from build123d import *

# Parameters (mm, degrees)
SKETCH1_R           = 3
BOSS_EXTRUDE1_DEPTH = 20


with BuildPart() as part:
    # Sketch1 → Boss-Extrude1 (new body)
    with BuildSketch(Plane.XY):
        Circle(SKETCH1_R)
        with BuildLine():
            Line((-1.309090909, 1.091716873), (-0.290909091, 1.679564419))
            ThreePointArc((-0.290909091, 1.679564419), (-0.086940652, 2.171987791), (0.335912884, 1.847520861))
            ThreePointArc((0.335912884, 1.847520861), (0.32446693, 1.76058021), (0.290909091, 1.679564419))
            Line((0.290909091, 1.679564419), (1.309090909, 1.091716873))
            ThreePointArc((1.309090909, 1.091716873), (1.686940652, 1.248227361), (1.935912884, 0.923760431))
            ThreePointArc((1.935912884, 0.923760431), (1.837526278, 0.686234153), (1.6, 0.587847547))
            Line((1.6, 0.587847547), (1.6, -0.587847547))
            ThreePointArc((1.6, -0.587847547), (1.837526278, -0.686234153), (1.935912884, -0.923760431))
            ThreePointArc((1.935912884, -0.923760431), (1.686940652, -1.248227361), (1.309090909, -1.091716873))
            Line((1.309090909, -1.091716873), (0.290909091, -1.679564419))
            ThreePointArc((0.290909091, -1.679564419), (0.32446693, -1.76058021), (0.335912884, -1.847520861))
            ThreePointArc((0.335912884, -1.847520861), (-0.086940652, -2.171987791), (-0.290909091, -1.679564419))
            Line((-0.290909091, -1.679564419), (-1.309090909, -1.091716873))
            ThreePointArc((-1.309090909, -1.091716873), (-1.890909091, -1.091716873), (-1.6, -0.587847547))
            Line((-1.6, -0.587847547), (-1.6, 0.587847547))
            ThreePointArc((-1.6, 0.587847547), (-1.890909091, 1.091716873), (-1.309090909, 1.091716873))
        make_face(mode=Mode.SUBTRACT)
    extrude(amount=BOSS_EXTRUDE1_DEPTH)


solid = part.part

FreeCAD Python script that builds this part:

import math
import FreeCAD as App
import Part
import Sketcher

V = App.Vector
Q = App.Units.Quantity

doc = App.newDocument("Part")
params = doc.addObject("Spreadsheet::Sheet", "Params")
for row, (alias, value) in enumerate([
    ("sketch1_diameter", "6 mm"),
    ("pad1_length", "20 mm"),
], start=1):
    params.set(f"A{row}", alias)
    params.set(f"B{row}", "=" + value)
    params.setAlias(f"B{row}", alias)

body = doc.addObject("PartDesign::Body", "Body")

sketch1 = doc.addObject("Sketcher::SketchObject", "Sketch")
body.addObject(sketch1)
sketch1.AttachmentSupport = (doc.XY_Plane, [""])
sketch1.MapMode = "FlatFace"
sketch1.addGeometry(Part.Circle(V(0, 0, 0), V(0, 0, 1), 3), False)
sketch1.addGeometry(Part.ArcOfCircle(Part.Circle(V(-1.6, 0.92, 0), V(0, 0, 1), 0.34), math.radians(30), math.radians(270)), False)
sketch1.addGeometry(Part.LineSegment(V(-1.31, 1.09, 0), V(-0.29, 1.68, 0)), False)
sketch1.addGeometry(Part.ArcOfCircle(Part.Circle(V(0, 1.85, 0), V(0, 0, 1), 0.34), math.radians(0), math.radians(210)), False)
sketch1.addGeometry(Part.ArcOfCircle(Part.Circle(V(0, 1.85, 0), V(0, 0, 1), 0.34), math.radians(-30), math.radians(0)), False)
sketch1.addGeometry(Part.LineSegment(V(0.29, 1.68, 0), V(1.31, 1.09, 0)), False)
sketch1.addGeometry(Part.ArcOfCircle(Part.Circle(V(1.6, 0.92, 0), V(0, 0, 1), 0.34), math.radians(0), math.radians(150)), False)
sketch1.addGeometry(Part.ArcOfCircle(Part.Circle(V(1.6, 0.92, 0), V(0, 0, 1), 0.34), math.radians(-90), math.radians(0)), False)
sketch1.addGeometry(Part.LineSegment(V(1.6, 0.59, 0), V(1.6, -0.59, 0)), False)
sketch1.addGeometry(Part.ArcOfCircle(Part.Circle(V(1.6, -0.92, 0), V(0, 0, 1), 0.34), math.radians(0), math.radians(90)), False)
sketch1.addGeometry(Part.ArcOfCircle(Part.Circle(V(1.6, -0.92, 0), V(0, 0, 1), 0.34), math.radians(-150), math.radians(0)), False)
sketch1.addGeometry(Part.LineSegment(V(1.31, -1.09, 0), V(0.29, -1.68, 0)), False)
sketch1.addGeometry(Part.ArcOfCircle(Part.Circle(V(0, -1.85, 0), V(0, 0, 1), 0.34), math.radians(0), math.radians(30)), False)
sketch1.addGeometry(Part.ArcOfCircle(Part.Circle(V(0, -1.85, 0), V(0, 0, 1), 0.34), math.radians(150), math.radians(360)), False)
sketch1.addGeometry(Part.LineSegment(V(-0.29, -1.68, 0), V(-1.31, -1.09, 0)), False)
sketch1.addGeometry(Part.ArcOfCircle(Part.Circle(V(-1.6, -0.92, 0), V(0, 0, 1), 0.34), math.radians(90), math.radians(330)), False)
sketch1.addGeometry(Part.LineSegment(V(-1.6, -0.59, 0), V(-1.6, 0.59, 0)), False)
sketch1.addConstraint(Sketcher.Constraint("Coincident", 1, 1, 2, 1))
sketch1.addConstraint(Sketcher.Constraint("Coincident", 2, 2, 3, 2))
sketch1.addConstraint(Sketcher.Constraint("Tangent", 3, 1, 4, 2))
sketch1.addConstraint(Sketcher.Constraint("Coincident", 4, 1, 5, 1))
sketch1.addConstraint(Sketcher.Constraint("Coincident", 5, 2, 6, 2))
sketch1.addConstraint(Sketcher.Constraint("Tangent", 6, 1, 7, 2))
sketch1.addConstraint(Sketcher.Constraint("Coincident", 7, 1, 8, 1))
sketch1.addConstraint(Sketcher.Constraint("Coincident", 8, 2, 9, 2))
sketch1.addConstraint(Sketcher.Constraint("Tangent", 9, 1, 10, 2))
sketch1.addConstraint(Sketcher.Constraint("Coincident", 10, 1, 11, 1))
sketch1.addConstraint(Sketcher.Constraint("Coincident", 11, 2, 12, 2))
sketch1.addConstraint(Sketcher.Constraint("Tangent", 12, 1, 13, 2))
sketch1.addConstraint(Sketcher.Constraint("Coincident", 13, 1, 14, 1))
sketch1.addConstraint(Sketcher.Constraint("Coincident", 14, 2, 15, 2))
sketch1.addConstraint(Sketcher.Constraint("Coincident", 15, 1, 16, 1))
sketch1.addConstraint(Sketcher.Constraint("Coincident", 16, 2, 1, 2))
sketch1.addConstraint(Sketcher.Constraint("Vertical", 8))
sketch1.addConstraint(Sketcher.Constraint("Vertical", 16))
sketch1.addConstraint(Sketcher.Constraint("Coincident", 0, 3, -1, 1))
sketch1.addConstraint(Sketcher.Constraint("Equal", 1, 3))
sketch1.addConstraint(Sketcher.Constraint("Equal", 3, 4))
sketch1.addConstraint(Sketcher.Constraint("Equal", 4, 6))
sketch1.addConstraint(Sketcher.Constraint("Equal", 6, 7))
sketch1.addConstraint(Sketcher.Constraint("Equal", 7, 9))
sketch1.addConstraint(Sketcher.Constraint("Equal", 9, 10))
sketch1.addConstraint(Sketcher.Constraint("Equal", 10, 12))
sketch1.addConstraint(Sketcher.Constraint("Equal", 12, 13))
sketch1.addConstraint(Sketcher.Constraint("Equal", 13, 15))
sketch1.addConstraint(Sketcher.Constraint("Symmetric", 1, 3, 9, 3, -1, 1))
sketch1.addConstraint(Sketcher.Constraint("Symmetric", 3, 3, 12, 3, -1, 1))
sketch1.addConstraint(Sketcher.Constraint("Symmetric", 6, 3, 15, 3, -1, 1))
sketch1.addConstraint(Sketcher.Constraint("Symmetric", 1, 3, 6, 3, -2))
sketch1.addConstraint(Sketcher.Constraint("Symmetric", 2, 2, 4, 1, -2))
sketch1.addConstraint(Sketcher.Constraint("Parallel", 2, 11))
sketch1.addConstraint(Sketcher.Constraint("Parallel", 5, 14))
sketch1.addConstraint(Sketcher.Constraint("Horizontal", 4, 3, 3, 1))
sketch1.addConstraint(Sketcher.Constraint("Horizontal", 1, 1, 5, 2))
sketch1.addConstraint(Sketcher.Constraint("Horizontal", 7, 3, 6, 1))
sketch1.addConstraint(Sketcher.Constraint("Horizontal", 15, 3, 9, 1))
sketch1.addConstraint(Sketcher.Constraint("Horizontal", 13, 3, 12, 1))
sketch1.addConstraint(Sketcher.Constraint("Horizontal", 11, 2, 13, 1))
sketch1.addConstraint(Sketcher.Constraint("Vertical", 10, 3, 7, 1))
sketch1.addConstraint(Sketcher.Constraint("Vertical", 5, 2, 10, 1))
sketch1.addConstraint(Sketcher.Constraint("Vertical", 1, 3, 15, 1))
sketch1.addConstraint(Sketcher.Constraint("Diameter", 0, 6.0))
sketch1.addConstraint(Sketcher.Constraint("Angle", 2, Q("30 deg")))
sketch1.addConstraint(Sketcher.Constraint("DistanceX", 1, 3, -1, 1, 1.6))
sketch1.addConstraint(Sketcher.Constraint("DistanceX", 14, 2, 11, 2, 1.6))
sketch1.addConstraint(Sketcher.Constraint("Radius", 1, 0.335913))
sketch1.addConstraint(Sketcher.Constraint("DistanceY", 8, 2, 8, 1, 1.175695))
sketch1.addConstraint(Sketcher.Constraint("DistanceY", -1, 1, 3, 3, 1.847521))
sketch1.setExpression("Constraints[44]", "Params.sketch1_diameter")
pad1 = doc.addObject("PartDesign::Pad", "Pad")
body.addObject(pad1)
pad1.Profile = sketch1
pad1.setExpression("Length", "Params.pad1_length")

doc.recompute()
